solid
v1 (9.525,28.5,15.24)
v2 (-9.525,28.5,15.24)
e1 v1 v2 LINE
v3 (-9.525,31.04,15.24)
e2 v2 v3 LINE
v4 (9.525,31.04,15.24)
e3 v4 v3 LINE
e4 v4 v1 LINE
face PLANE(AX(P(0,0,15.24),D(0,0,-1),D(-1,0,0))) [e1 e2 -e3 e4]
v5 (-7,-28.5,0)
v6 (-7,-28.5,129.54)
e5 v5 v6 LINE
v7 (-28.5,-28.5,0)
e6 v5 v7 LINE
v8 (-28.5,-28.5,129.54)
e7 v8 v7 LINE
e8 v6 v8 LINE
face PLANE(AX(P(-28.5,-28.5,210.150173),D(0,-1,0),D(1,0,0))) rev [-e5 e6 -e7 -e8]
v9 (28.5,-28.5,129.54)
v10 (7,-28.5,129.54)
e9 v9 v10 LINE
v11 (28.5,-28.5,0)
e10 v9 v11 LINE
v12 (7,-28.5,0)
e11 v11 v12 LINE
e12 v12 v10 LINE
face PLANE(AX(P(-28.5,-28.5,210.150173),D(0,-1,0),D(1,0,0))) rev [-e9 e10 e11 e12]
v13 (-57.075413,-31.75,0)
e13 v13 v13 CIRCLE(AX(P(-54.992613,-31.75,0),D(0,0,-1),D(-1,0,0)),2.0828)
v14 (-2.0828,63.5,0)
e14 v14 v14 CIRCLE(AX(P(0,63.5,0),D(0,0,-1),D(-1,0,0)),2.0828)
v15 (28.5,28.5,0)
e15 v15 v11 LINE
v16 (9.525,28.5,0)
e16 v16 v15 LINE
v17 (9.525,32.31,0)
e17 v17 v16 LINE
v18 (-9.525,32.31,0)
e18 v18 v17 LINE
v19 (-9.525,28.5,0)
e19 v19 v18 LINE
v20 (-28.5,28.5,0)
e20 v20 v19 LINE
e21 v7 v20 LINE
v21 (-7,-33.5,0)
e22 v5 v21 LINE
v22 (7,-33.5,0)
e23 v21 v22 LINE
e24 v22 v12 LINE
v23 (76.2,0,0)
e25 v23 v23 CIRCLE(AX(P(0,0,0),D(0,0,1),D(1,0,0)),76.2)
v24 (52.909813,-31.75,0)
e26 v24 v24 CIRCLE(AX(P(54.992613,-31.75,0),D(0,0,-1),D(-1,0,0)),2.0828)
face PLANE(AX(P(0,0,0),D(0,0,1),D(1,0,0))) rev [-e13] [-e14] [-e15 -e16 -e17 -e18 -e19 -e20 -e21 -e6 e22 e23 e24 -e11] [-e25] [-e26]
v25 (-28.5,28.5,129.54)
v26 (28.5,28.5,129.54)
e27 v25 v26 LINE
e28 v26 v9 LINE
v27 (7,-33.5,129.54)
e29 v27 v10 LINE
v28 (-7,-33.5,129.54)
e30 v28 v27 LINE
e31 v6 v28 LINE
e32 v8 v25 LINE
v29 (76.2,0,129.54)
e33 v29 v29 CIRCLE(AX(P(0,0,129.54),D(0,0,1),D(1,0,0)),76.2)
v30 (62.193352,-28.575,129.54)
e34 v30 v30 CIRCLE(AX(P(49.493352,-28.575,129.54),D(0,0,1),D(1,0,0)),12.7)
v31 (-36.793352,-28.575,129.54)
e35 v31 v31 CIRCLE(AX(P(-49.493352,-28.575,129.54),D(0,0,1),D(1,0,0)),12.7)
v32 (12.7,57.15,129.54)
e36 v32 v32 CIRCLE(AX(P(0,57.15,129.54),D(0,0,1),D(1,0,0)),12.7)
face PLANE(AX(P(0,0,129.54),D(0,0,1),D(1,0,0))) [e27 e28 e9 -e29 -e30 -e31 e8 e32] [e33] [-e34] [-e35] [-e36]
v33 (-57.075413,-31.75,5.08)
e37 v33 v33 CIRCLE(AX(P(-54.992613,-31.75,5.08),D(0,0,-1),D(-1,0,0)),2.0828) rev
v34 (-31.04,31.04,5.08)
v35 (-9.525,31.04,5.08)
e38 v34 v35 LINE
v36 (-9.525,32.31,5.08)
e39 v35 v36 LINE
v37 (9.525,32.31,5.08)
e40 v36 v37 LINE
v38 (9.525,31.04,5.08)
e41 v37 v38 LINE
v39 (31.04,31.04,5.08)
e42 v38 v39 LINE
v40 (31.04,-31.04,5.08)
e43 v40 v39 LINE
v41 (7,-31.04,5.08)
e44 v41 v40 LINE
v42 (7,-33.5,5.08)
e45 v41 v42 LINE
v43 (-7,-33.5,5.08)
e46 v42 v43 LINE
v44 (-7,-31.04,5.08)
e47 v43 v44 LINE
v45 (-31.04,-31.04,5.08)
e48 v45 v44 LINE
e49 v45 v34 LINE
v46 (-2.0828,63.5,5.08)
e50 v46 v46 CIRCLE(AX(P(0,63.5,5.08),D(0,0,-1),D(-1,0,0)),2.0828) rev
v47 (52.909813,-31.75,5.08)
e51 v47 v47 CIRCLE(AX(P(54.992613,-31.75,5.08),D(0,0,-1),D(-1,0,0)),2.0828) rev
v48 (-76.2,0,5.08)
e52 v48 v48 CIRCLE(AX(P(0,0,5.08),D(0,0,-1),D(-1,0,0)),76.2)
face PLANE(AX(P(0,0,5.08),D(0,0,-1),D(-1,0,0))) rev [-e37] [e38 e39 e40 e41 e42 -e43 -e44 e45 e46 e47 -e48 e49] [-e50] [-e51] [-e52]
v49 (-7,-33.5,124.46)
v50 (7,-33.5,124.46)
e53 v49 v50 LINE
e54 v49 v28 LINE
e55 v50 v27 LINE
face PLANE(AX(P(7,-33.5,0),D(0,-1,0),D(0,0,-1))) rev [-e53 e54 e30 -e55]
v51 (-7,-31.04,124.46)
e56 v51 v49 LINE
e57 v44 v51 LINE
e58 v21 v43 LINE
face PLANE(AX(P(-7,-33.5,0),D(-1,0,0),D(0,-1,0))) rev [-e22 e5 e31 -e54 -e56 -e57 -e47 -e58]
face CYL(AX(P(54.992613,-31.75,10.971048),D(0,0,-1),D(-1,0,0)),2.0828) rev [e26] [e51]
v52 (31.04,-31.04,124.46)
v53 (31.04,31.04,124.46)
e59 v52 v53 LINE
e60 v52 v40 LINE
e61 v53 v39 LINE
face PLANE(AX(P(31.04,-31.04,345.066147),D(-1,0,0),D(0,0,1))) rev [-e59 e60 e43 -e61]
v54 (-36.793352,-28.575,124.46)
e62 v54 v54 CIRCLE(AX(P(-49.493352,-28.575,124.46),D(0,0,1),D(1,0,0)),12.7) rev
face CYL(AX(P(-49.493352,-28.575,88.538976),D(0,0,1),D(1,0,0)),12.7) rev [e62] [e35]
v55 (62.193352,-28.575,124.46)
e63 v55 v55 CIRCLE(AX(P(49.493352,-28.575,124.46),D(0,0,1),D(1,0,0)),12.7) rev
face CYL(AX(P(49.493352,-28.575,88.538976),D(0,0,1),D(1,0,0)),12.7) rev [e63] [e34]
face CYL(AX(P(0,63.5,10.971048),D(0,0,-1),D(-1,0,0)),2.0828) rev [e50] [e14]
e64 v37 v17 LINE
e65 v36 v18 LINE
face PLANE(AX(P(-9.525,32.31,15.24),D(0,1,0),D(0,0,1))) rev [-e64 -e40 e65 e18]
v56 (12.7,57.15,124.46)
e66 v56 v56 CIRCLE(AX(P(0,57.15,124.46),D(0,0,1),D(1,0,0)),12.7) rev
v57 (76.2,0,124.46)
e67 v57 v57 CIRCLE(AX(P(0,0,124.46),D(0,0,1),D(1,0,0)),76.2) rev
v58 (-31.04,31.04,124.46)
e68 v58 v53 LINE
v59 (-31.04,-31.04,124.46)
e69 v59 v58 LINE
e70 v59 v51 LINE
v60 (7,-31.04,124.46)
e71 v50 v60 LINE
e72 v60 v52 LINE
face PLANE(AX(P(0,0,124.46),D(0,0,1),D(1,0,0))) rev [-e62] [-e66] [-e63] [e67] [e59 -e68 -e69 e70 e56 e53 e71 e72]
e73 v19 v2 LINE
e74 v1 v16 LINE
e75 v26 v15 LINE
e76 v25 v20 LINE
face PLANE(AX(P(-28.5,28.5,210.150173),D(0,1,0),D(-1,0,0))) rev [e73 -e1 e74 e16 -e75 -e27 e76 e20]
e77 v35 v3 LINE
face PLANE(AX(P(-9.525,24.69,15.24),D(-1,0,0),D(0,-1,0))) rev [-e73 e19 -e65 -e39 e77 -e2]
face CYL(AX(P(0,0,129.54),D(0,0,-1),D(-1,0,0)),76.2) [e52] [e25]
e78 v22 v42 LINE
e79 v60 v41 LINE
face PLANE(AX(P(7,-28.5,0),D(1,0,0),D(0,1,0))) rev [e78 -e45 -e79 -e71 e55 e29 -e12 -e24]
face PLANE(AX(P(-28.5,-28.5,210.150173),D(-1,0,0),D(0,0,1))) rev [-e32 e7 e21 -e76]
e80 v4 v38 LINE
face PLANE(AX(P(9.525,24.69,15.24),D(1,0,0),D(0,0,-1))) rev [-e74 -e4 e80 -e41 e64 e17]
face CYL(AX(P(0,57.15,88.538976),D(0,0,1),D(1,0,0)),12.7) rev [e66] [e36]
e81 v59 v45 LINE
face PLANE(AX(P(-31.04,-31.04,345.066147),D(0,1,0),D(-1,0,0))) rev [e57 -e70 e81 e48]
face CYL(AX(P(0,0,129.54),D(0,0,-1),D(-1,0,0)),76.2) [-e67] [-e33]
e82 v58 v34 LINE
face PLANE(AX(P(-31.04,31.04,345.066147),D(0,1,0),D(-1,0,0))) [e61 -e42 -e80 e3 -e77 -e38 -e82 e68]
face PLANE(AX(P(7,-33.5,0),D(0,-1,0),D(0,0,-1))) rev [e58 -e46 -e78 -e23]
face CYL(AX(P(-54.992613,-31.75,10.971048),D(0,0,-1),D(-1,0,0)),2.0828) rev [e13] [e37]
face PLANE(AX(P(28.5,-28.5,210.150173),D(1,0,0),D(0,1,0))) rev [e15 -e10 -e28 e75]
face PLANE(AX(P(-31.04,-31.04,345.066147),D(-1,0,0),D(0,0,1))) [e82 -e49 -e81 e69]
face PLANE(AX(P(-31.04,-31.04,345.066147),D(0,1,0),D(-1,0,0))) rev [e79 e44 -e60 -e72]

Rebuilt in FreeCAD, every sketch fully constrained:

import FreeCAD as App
import Part
import Sketcher
Q = App.Units.Quantity

doc = App.newDocument("Part")
body = doc.addObject("PartDesign::Body", "Body")

# Sketch on XY plane
sketch1 = body.newObject("Sketcher::SketchObject", "Sketch")
sketch1.AttachmentSupport = (doc.getObject("XY_Plane"), [""])
sketch1.MapMode = "FlatFace"
sketch1.addGeometry(Part.Circle(App.Vector(0, 0, 0), App.Vector(0, 0, 1), 76), False)
sketch1.addConstraint([
    Sketcher.Constraint("Coincident", 0, 3, -1, 1),
    Sketcher.Constraint("Diameter", 0, Q("6 in")),
])
pad1 = body.newObject("PartDesign::Pad", "Pad")
pad1.Profile = sketch1
pad1.Length = Q("5.1 in")

# Sketch on XY plane
sketch2 = body.newObject("Sketcher::SketchObject", "Sketch001")
sketch2.AttachmentSupport = (doc.getObject("XY_Plane"), [""])
sketch2.MapMode = "FlatFace"
sketch2.AttachmentOffset = App.Placement(App.Vector(0, 0, 0.2 * 25.4), App.Rotation())
sketch2.addGeometry([
    Part.Circle(App.Vector(0, 0, 0), App.Vector(0, 0, 1), 76),  # 0
    Part.LineSegment(App.Vector(-31, -31, 0), App.Vector(31, -31, 0)),  # 1
    Part.LineSegment(App.Vector(31, -31, 0), App.Vector(31, 31, 0)),  # 2
    Part.LineSegment(App.Vector(31, 31, 0), App.Vector(-31, 31, 0)),  # 3
    Part.LineSegment(App.Vector(-31, 31, 0), App.Vector(-31, -31, 0)),  # 4
], False)
sketch2.addConstraint([
    Sketcher.Constraint("Coincident", 1, 2, 2, 1),
    Sketcher.Constraint("Coincident", 2, 2, 3, 1),
    Sketcher.Constraint("Coincident", 3, 2, 4, 1),
    Sketcher.Constraint("Coincident", 4, 2, 1, 1),
    Sketcher.Constraint("Horizontal", 1),
    Sketcher.Constraint("Vertical", 2),
    Sketcher.Constraint("Horizontal", 3),
    Sketcher.Constraint("Vertical", 4),
    Sketcher.Constraint("Coincident", 0, 3, -1, 1),
    Sketcher.Constraint("Symmetric", 1, 2, 3, 2, -1, 1),
    Sketcher.Constraint("Equal", 3, 2),
    Sketcher.Constraint("Diameter", 0, Q("6 in")),
    Sketcher.Constraint("DistanceX", 1, 1, 1, 2, 62.08),
])
pocket1 = body.newObject("PartDesign::Pocket", "Pocket")
pocket1.Profile = sketch2
pocket1.Length = Q("4.7 in")
pocket1.Reversed = True

# Sketch on XY plane
sketch3 = body.newObject("Sketcher::SketchObject", "Sketch002")
sketch3.AttachmentSupport = (doc.getObject("XY_Plane"), [""])
sketch3.MapMode = "FlatFace"
sketch3.addGeometry([
    Part.LineSegment(App.Vector(28, 28, 0), App.Vector(28, -28, 0)),
    Part.LineSegment(App.Vector(28, -28, 0), App.Vector(-28, -28, 0)),
    Part.LineSegment(App.Vector(-28, -28, 0), App.Vector(-28, 28, 0)),
    Part.LineSegment(App.Vector(-28, 28, 0), App.Vector(28, 28, 0)),
], False)
sketch3.addConstraint([
    Sketcher.Constraint("Coincident", 0, 2, 1, 1),
    Sketcher.Constraint("Coincident", 1, 2, 2, 1),
    Sketcher.Constraint("Coincident", 2, 2, 3, 1),
    Sketcher.Constraint("Coincident", 3, 2, 0, 1),
    Sketcher.Constraint("Vertical", 0),
    Sketcher.Constraint("Horizontal", 1),
    Sketcher.Constraint("Vertical", 2),
    Sketcher.Constraint("Horizontal", 3),
    Sketcher.Constraint("Symmetric", 0, 2, 2, 2, -1, 1),
    Sketcher.Constraint("Equal", 3, 0),
    Sketcher.Constraint("DistanceX", 1, 2, 1, 1, 57.0),
])
pocket2 = body.newObject("PartDesign::Pocket", "Pocket001")
pocket2.Profile = sketch3
pocket2.Length = Q("5.1 in")
pocket2.Reversed = True

# Sketch on XY plane
sketch4 = body.newObject("Sketcher::SketchObject", "Sketch003")
sketch4.AttachmentSupport = (doc.getObject("XY_Plane"), [""])
sketch4.MapMode = "FlatFace"
sketch4.addGeometry([
    Part.Circle(App.Vector(0, 63.5, 0), App.Vector(0, 0, 1), 2.1),
    Part.Circle(App.Vector(-55, -31.8, 0), App.Vector(0, 0, 1), 2.1),
    Part.Circle(App.Vector(55, -31.8, 0), App.Vector(0, 0, 1), 2.1),
], False)
sketch4.addConstraint([
    Sketcher.Constraint("Equal", 0, 1),
    Sketcher.Constraint("Equal", 1, 2),
    Sketcher.Constraint("Symmetric", 1, 3, 2, 3, -2),
    Sketcher.Constraint("PointOnObject", 0, 3, -2),
    Sketcher.Constraint("Diameter", 0, Q("0.164 in")),
    Sketcher.Constraint("DistanceY", -1, 1, 0, 3, Q("2.5 in")),
    Sketcher.Constraint("DistanceY", 1, 3, -1, 1, Q("1.25 in")),
    Sketcher.Constraint("DistanceX", 1, 3, -1, 1, 54.992613),
])
pocket3 = body.newObject("PartDesign::Pocket", "Pocket002")
pocket3.Profile = sketch4
pocket3.Length = Q("0.2 in")
pocket3.Reversed = True

# Sketch on XY plane
sketch5 = body.newObject("Sketcher::SketchObject", "Sketch004")
sketch5.AttachmentSupport = (doc.getObject("XY_Plane"), [""])
sketch5.MapMode = "FlatFace"
sketch5.AttachmentOffset = App.Placement(App.Vector(0, 0, 5.1 * 25.4), App.Rotation())
sketch5.addGeometry([
    Part.Circle(App.Vector(0, 57, 0), App.Vector(0, 0, 1), 13),
    Part.Circle(App.Vector(49, -29, 0), App.Vector(0, 0, 1), 13),
    Part.Circle(App.Vector(-49, -29, 0), App.Vector(0, 0, 1), 13),
], False)
sketch5.addConstraint([
    Sketcher.Constraint("Equal", 0, 1),
    Sketcher.Constraint("Equal", 1, 2),
    Sketcher.Constraint("Symmetric", 1, 3, 2, 3, -2),
    Sketcher.Constraint("PointOnObject", 0, 3, -2),
    Sketcher.Constraint("Diameter", 0, Q("1 in")),
    Sketcher.Constraint("DistanceY", -1, 1, 0, 3, Q("2.25 in")),
    Sketcher.Constraint("DistanceY", 1, 3, -1, 1, Q("1.125 in")),
    Sketcher.Constraint("DistanceX", -1, 1, 1, 3, 49.493352),
])
pocket4 = body.newObject("PartDesign::Pocket", "Pocket003")
pocket4.Profile = sketch5
pocket4.Length = Q("0.2 in")

# Sketch on XY plane
sketch6 = body.newObject("Sketcher::SketchObject", "Sketch005")
sketch6.AttachmentSupport = (doc.getObject("XY_Plane"), [""])
sketch6.MapMode = "FlatFace"
sketch6.AttachmentOffset = App.Placement(App.Vector(0, 0, 5.1 * 25.4), App.Rotation())
sketch6.addGeometry([
    Part.LineSegment(App.Vector(-7, -28, 0), App.Vector(-7, -34, 0)),
    Part.LineSegment(App.Vector(-7, -34, 0), App.Vector(7, -34, 0)),
    Part.LineSegment(App.Vector(7, -34, 0), App.Vector(7, -28, 0)),
    Part.LineSegment(App.Vector(7, -28, 0), App.Vector(-7, -28, 0)),
], False)
sketch6.addConstraint([
    Sketcher.Constraint("Coincident", 0, 2, 1, 1),
    Sketcher.Constraint("Coincident", 1, 2, 2, 1),
    Sketcher.Constraint("Coincident", 2, 2, 3, 1),
    Sketcher.Constraint("Coincident", 3, 2, 0, 1),
    Sketcher.Constraint("Vertical", 0),
    Sketcher.Constraint("Horizontal", 1),
    Sketcher.Constraint("Vertical", 2),
    Sketcher.Constraint("Horizontal", 3),
    Sketcher.Constraint("DistanceX", 1, 1, 1, 2, 14.0),
    Sketcher.Constraint("DistanceY", 0, 2, 0, 1, 5.0),
    Sketcher.Constraint("DistanceX", 0, 2, -1, 1, 7.0),
    Sketcher.Constraint("DistanceY", 0, 2, -1, 1, 33.5),
])
pocket5 = body.newObject("PartDesign::Pocket", "Pocket004")
pocket5.Profile = sketch6
pocket5.Type = "ThroughAll"

# Sketch on XY plane
sketch7 = body.newObject("Sketcher::SketchObject", "Sketch006")
sketch7.AttachmentSupport = (doc.getObject("XY_Plane"), [""])
sketch7.MapMode = "FlatFace"
sketch7.addGeometry([
    Part.LineSegment(App.Vector(10, 32, 0), App.Vector(10, 25, 0)),
    Part.LineSegment(App.Vector(10, 25, 0), App.Vector(-10, 25, 0)),
    Part.LineSegment(App.Vector(-10, 25, 0), App.Vector(-10, 32, 0)),
    Part.LineSegment(App.Vector(-10, 32, 0), App.Vector(10, 32, 0)),
], False)
sketch7.addConstraint([
    Sketcher.Constraint("Coincident", 0, 2, 1, 1),
    Sketcher.Constraint("Coincident", 1, 2, 2, 1),
    Sketcher.Constraint("Coincident", 2, 2, 3, 1),
    Sketcher.Constraint("Coincident", 3, 2, 0, 1),
    Sketcher.Constraint("Vertical", 0),
    Sketcher.Constraint("Horizontal", 1),
    Sketcher.Constraint("Vertical", 2),
    Sketcher.Constraint("Horizontal", 3),
    Sketcher.Constraint("DistanceY", 0, 2, 0, 1, Q("0.3 in")),
    Sketcher.Constraint("DistanceX", 1, 2, 1, 1, Q("0.75 in")),
    Sketcher.Constraint("DistanceX", -1, 1, 0, 2, Q("0.375 in")),
    Sketcher.Constraint("DistanceY", -1, 1, 0, 2, 24.69),
])
pocket6 = body.newObject("PartDesign::Pocket", "Pocket005")
pocket6.Profile = sketch7
pocket6.Length = Q("0.6 in")
pocket6.Reversed = True

doc.recompute()
